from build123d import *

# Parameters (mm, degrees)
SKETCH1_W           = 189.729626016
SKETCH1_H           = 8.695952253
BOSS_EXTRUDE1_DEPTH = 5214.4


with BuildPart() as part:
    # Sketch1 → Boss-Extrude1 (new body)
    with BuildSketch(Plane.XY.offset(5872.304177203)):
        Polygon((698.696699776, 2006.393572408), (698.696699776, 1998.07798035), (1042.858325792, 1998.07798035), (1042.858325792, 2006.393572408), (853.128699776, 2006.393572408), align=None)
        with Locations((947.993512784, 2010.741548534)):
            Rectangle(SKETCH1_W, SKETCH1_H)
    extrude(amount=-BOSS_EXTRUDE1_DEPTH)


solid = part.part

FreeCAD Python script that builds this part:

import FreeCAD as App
import Part
import Sketcher

doc = App.newDocument("Part")
params = doc.addObject("Spreadsheet::Sheet", "Params")
for row, (alias, value) in enumerate([
    ("pad1_length", "5214.4 mm"),
], start=1):
    params.set(f"A{row}", alias)
    params.set(f"B{row}", "=" + value)
    params.setAlias(f"B{row}", alias)

body = doc.addObject("PartDesign::Body", "Body")

# Sketch on XY plane
sketch1 = doc.addObject("Sketcher::SketchObject", "Sketch")
body.addObject(sketch1)
sketch1.AttachmentSupport = (doc.XY_Plane, [""])
sketch1.MapMode = "FlatFace"
sketch1.AttachmentOffset = App.Placement(App.Vector(0, 0, 5872.304177), App.Rotation())
sketch1.addGeometry([
    Part.LineSegment(App.Vector(698.6967, 2006.393572, 0), App.Vector(698.6967, 1998.07798, 0)),  # 0
    Part.LineSegment(App.Vector(698.6967, 1998.07798, 0), App.Vector(1042.858326, 1998.07798, 0)),  # 1
    Part.LineSegment(App.Vector(1042.858326, 1998.07798, 0), App.Vector(1042.858326, 2015.089525, 0)),  # 2
    Part.LineSegment(App.Vector(1042.858326, 2015.089525, 0), App.Vector(853.1287, 2015.089525, 0)),  # 3
    Part.LineSegment(App.Vector(853.1287, 2015.089525, 0), App.Vector(853.1287, 2006.393572, 0)),  # 4
    Part.LineSegment(App.Vector(853.1287, 2006.393572, 0), App.Vector(698.6967, 2006.393572, 0)),  # 5
], False)
sketch1.addConstraint([
    Sketcher.Constraint("Coincident", 0, 2, 1, 1),
    Sketcher.Constraint("Coincident", 1, 2, 2, 1),
    Sketcher.Constraint("Coincident", 2, 2, 3, 1),
    Sketcher.Constraint("Coincident", 3, 2, 4, 1),
    Sketcher.Constraint("Coincident", 4, 2, 5, 1),
    Sketcher.Constraint("Coincident", 5, 2, 0, 1),
    Sketcher.Constraint("Vertical", 0),
    Sketcher.Constraint("Horizontal", 1),
    Sketcher.Constraint("Vertical", 2),
    Sketcher.Constraint("Horizontal", 3),
    Sketcher.Constraint("Vertical", 4),
    Sketcher.Constraint("Horizontal", 5),
    Sketcher.Constraint("DistanceX", 5, 2, 5, 1, 154.432),
    Sketcher.Constraint("DistanceX", -1, 1, 0, 2, 698.6967),
    Sketcher.Constraint("DistanceX", 1, 1, 1, 2, 344.161626),
    Sketcher.Constraint("DistanceY", 0, 2, 0, 1, 8.315592),
    Sketcher.Constraint("DistanceY", 2, 1, 2, 2, 17.011544),
    Sketcher.Constraint("DistanceY", -1, 1, 0, 2, 1998.07798),
])
pad1 = doc.addObject("PartDesign::Pad", "Pad")
body.addObject(pad1)
pad1.Profile = sketch1
pad1.setExpression("Length", "Params.pad1_length")
pad1.Reversed = True

doc.recompute()
